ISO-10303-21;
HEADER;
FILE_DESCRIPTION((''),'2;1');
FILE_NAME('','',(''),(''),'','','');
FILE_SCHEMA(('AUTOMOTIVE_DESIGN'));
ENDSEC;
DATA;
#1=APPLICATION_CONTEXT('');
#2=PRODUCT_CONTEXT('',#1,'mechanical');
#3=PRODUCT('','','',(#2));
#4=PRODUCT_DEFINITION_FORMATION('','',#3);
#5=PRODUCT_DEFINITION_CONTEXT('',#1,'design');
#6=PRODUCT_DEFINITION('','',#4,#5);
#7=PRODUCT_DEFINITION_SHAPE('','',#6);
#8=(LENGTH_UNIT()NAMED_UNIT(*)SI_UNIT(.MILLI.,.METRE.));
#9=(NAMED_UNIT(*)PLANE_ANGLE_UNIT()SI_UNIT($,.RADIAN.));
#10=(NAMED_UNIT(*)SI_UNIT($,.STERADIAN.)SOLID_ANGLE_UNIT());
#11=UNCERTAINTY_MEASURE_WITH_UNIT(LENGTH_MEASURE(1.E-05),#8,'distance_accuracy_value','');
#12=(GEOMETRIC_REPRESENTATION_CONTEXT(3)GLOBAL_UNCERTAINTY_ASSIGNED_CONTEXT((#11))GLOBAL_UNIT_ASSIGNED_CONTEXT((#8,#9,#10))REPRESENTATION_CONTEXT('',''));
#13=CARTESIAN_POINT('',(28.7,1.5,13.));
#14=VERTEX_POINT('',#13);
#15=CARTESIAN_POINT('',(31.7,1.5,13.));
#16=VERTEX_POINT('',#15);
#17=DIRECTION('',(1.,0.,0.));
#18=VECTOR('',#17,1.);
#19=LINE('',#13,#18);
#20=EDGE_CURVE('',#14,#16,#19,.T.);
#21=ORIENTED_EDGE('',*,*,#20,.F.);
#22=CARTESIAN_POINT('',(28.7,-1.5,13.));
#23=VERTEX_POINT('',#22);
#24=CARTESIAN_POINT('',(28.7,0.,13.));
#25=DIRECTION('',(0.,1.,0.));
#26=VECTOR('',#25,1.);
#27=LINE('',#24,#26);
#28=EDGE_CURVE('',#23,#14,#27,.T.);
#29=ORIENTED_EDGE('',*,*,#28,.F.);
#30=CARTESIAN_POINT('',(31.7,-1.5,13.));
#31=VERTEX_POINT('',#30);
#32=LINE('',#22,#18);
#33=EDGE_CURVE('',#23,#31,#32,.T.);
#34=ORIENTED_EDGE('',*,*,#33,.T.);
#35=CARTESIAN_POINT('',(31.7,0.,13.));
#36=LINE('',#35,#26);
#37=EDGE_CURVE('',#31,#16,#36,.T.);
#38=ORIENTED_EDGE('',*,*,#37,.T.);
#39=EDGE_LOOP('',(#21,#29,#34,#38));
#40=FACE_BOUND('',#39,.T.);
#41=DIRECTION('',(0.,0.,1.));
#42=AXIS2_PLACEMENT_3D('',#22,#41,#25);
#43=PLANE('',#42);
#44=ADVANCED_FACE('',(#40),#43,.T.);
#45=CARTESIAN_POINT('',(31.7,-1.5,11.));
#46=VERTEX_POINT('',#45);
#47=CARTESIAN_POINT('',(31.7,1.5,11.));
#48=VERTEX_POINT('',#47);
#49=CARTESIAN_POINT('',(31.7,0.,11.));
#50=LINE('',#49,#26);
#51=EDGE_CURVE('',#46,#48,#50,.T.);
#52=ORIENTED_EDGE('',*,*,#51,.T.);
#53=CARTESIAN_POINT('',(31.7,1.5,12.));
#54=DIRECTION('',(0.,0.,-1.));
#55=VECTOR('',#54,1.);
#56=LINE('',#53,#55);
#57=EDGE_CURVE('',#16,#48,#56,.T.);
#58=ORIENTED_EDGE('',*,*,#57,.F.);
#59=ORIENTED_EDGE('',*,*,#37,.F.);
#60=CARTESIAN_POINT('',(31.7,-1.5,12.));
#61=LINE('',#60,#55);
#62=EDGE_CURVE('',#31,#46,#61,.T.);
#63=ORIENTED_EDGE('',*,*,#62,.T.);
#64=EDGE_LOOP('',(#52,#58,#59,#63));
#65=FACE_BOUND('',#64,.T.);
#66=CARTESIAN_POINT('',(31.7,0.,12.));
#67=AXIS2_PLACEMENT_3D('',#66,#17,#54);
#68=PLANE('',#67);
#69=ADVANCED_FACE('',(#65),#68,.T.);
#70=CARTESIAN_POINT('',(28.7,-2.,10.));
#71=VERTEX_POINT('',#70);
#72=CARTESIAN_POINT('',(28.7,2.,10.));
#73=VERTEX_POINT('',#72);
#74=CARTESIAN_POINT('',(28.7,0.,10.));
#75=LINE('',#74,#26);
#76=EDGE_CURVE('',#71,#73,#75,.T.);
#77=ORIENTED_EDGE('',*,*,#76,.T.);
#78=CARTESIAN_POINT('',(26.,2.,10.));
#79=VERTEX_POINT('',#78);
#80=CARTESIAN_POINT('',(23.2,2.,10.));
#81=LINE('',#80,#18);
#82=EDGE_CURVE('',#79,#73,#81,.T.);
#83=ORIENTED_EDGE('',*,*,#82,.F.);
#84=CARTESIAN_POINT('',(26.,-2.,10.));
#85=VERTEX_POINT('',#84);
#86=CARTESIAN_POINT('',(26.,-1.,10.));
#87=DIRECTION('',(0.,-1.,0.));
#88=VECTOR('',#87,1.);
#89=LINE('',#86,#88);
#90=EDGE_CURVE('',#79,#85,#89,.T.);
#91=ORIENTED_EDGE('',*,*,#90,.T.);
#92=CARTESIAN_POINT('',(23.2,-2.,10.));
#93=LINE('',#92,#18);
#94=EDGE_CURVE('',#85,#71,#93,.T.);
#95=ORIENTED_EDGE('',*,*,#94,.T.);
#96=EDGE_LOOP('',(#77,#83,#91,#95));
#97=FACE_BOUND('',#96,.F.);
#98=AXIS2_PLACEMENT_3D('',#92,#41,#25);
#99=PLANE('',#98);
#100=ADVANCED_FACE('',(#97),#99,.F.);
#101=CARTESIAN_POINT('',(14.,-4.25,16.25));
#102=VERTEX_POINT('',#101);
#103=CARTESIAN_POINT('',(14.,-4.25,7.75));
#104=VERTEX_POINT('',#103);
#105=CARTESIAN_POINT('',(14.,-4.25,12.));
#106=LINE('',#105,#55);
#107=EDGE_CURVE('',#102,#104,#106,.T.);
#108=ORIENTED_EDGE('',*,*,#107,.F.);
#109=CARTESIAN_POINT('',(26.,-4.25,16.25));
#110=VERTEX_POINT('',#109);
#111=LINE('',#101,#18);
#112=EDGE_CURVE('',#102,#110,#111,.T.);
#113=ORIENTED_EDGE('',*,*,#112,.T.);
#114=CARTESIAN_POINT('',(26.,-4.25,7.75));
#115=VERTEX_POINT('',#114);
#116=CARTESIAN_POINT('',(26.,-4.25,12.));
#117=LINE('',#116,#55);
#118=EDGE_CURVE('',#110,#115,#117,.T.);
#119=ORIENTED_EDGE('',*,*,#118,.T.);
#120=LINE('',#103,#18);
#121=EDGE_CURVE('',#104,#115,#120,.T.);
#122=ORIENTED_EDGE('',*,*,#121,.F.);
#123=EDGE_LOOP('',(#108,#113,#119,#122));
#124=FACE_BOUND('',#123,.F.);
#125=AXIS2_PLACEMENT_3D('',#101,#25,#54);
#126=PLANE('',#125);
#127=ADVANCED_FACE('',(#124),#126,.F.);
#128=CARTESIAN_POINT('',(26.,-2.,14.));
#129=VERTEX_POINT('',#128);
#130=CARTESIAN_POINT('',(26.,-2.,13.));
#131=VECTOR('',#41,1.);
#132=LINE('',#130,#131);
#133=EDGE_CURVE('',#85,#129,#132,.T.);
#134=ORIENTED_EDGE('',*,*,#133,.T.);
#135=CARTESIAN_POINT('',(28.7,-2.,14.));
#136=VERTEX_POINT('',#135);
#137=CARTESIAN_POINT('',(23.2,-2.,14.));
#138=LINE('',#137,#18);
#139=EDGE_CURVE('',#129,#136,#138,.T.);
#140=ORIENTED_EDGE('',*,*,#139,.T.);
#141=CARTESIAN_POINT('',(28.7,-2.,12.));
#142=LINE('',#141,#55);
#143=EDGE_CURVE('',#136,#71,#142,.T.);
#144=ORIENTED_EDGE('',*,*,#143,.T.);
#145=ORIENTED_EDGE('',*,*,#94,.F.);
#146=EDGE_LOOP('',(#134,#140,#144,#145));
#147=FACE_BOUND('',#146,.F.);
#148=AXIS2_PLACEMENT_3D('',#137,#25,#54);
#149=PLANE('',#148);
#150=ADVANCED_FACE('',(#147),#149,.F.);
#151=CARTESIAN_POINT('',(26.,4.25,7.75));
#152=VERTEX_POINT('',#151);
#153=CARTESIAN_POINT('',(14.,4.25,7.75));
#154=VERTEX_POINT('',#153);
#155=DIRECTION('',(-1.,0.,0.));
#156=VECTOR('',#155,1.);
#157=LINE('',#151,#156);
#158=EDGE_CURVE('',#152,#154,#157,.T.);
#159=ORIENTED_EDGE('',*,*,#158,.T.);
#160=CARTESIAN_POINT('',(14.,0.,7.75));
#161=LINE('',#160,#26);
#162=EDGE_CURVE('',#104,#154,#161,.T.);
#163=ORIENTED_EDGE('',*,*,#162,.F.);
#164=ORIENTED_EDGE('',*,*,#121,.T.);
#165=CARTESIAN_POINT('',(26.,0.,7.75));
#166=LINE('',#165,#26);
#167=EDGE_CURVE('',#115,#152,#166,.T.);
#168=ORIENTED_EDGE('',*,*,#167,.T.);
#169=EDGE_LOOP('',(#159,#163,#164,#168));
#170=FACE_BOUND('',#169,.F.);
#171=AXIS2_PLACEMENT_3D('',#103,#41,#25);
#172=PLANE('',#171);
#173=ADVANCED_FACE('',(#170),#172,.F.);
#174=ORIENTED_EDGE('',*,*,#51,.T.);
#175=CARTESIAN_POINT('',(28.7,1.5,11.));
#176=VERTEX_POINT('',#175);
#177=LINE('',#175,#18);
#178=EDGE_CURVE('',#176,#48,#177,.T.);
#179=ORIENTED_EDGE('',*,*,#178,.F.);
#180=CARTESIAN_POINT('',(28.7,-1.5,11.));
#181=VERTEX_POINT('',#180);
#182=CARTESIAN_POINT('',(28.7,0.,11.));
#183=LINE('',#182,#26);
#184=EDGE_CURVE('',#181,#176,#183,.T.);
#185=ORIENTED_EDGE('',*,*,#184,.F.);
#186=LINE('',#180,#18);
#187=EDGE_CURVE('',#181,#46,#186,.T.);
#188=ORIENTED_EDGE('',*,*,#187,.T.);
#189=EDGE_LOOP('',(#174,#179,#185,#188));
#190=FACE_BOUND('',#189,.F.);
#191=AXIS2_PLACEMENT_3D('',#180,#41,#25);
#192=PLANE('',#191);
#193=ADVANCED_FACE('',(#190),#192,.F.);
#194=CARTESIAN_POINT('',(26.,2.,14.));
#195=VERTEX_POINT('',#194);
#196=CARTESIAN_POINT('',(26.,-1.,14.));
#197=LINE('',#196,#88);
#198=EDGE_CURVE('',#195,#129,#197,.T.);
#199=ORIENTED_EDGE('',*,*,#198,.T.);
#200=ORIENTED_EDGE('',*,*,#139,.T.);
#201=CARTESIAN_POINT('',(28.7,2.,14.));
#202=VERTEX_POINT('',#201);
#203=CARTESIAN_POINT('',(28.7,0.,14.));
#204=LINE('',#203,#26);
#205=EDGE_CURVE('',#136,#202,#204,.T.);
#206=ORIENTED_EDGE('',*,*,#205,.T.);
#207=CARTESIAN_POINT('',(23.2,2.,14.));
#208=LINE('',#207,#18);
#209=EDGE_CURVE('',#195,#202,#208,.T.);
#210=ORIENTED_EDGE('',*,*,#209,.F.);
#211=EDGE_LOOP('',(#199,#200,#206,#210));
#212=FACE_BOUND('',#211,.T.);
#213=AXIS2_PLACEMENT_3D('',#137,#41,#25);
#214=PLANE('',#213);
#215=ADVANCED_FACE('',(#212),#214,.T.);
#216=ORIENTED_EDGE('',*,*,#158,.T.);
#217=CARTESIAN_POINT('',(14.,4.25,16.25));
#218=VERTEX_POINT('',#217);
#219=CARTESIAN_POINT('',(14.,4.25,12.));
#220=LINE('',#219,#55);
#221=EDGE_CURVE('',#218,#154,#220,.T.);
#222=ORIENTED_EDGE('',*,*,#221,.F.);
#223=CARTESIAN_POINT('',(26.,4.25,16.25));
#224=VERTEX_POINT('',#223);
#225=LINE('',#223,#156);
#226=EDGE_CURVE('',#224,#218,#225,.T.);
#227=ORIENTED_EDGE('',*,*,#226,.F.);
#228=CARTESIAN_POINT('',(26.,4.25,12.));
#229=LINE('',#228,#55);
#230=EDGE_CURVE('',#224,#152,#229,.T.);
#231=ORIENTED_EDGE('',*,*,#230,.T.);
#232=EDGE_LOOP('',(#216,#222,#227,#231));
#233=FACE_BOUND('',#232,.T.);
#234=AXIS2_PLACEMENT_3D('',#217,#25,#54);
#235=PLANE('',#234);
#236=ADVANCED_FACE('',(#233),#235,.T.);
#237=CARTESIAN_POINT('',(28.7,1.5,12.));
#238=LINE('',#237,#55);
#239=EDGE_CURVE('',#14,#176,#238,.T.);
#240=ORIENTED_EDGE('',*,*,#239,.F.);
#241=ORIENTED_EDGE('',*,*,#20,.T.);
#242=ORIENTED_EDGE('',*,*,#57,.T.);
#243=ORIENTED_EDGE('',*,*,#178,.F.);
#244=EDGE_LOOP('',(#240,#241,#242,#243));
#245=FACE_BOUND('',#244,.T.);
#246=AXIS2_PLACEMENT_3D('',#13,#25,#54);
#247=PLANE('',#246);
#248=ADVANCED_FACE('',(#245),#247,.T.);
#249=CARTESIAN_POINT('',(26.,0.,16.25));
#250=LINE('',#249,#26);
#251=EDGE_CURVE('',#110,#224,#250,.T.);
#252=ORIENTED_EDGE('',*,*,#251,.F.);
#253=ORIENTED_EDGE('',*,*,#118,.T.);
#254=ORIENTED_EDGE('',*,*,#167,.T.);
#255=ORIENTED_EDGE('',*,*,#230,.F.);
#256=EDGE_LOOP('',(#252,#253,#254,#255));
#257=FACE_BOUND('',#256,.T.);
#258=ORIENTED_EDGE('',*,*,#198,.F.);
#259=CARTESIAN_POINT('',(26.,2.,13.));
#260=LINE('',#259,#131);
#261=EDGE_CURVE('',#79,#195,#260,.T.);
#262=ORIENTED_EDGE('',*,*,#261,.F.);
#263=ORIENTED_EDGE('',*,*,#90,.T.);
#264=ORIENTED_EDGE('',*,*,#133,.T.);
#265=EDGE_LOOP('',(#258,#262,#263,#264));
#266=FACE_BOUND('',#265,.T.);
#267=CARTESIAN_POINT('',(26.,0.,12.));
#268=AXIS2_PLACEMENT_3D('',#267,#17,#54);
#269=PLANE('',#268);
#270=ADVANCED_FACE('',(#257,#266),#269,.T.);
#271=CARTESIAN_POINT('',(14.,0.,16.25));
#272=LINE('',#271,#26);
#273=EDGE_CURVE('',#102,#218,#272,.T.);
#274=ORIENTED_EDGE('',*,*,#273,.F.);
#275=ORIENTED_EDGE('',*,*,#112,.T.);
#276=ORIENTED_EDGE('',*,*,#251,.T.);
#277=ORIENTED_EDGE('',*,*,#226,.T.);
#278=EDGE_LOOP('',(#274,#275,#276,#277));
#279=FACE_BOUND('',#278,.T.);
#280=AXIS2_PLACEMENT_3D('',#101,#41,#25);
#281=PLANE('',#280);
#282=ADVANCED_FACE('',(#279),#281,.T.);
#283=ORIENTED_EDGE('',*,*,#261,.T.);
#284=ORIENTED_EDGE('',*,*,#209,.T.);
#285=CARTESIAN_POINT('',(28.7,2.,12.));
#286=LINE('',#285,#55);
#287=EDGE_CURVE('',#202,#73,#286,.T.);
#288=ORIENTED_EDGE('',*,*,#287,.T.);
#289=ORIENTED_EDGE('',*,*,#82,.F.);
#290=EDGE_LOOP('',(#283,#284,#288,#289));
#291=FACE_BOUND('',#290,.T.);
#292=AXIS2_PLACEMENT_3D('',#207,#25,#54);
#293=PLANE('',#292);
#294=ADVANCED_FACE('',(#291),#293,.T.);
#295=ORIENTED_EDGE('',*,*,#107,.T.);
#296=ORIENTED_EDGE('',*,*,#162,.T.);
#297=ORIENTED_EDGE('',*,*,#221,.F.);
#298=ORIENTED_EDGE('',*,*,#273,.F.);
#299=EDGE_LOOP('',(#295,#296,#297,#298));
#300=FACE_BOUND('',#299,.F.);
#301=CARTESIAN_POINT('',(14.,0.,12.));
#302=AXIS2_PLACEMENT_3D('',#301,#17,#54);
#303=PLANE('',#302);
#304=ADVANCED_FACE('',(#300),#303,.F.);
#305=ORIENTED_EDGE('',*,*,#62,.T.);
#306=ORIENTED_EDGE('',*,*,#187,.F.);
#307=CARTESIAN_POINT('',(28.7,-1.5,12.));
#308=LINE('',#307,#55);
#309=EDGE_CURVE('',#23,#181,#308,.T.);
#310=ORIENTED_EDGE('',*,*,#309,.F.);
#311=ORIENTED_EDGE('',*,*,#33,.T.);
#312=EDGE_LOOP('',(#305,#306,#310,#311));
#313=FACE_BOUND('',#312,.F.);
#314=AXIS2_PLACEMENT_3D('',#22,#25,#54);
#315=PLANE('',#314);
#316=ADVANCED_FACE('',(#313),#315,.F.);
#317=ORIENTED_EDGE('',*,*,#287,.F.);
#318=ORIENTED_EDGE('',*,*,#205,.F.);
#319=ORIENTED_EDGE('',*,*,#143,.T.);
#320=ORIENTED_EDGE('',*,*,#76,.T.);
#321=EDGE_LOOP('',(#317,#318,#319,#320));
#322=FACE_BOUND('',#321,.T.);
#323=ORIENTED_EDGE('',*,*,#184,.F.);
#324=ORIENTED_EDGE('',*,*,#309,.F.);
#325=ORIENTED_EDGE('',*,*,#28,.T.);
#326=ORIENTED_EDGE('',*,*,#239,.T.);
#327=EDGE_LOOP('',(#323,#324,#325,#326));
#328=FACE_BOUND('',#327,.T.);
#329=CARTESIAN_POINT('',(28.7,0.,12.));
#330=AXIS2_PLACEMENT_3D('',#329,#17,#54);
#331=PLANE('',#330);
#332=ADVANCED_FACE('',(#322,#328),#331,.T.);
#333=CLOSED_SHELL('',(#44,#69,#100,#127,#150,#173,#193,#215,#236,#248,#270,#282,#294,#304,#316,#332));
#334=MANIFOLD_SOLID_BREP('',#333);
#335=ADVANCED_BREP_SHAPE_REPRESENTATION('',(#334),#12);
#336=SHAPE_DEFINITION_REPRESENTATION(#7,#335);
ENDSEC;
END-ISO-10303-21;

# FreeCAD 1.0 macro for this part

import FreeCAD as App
import Part
import Sketcher

V = App.Vector

doc = App.newDocument("Part")
body = doc.addObject("PartDesign::Body", "Body")

sketch1 = body.newObject("Sketcher::SketchObject", "Sketch")
sketch1.AttachmentSupport = (doc.getObject("XY_Plane"), [""])
sketch1.MapMode = "FlatFace"
sketch1.AttachmentOffset = App.Placement(V(0, 0, 5.7), App.Rotation())
sketch1.addGeometry([
    Part.LineSegment(V(-2, 2, 0), V(-2, -2, 0)),
    Part.LineSegment(V(-2, -2, 0), V(2, -2, 0)),
    Part.LineSegment(V(2, -2, 0), V(2, 2, 0)),
    Part.LineSegment(V(2, 2, 0), V(-2, 2, 0)),
], False)
sketch1.addConstraint([
    Sketcher.Constraint("Coincident", 0, 2, 1, 1),
    Sketcher.Constraint("Coincident", 1, 2, 2, 1),
    Sketcher.Constraint("Coincident", 2, 2, 3, 1),
    Sketcher.Constraint("Coincident", 3, 2, 0, 1),
    Sketcher.Constraint("Vertical", 0),
    Sketcher.Constraint("Horizontal", 1),
    Sketcher.Constraint("Vertical", 2),
    Sketcher.Constraint("Horizontal", 3),
    Sketcher.Constraint("Symmetric", 0, 2, 2, 2, -1, 1),
    Sketcher.Constraint("Equal", 3, 0),
    Sketcher.Constraint("DistanceX", 1, 1, 1, 2, 4.0),
])
pad1 = body.newObject("PartDesign::Pad", "Pad")
pad1.Profile = sketch1
pad1.Length = 5.5
body2 = doc.addObject("PartDesign::Body", "Body001")

sketch2 = body2.newObject("Sketcher::SketchObject", "Sketch001")
sketch2.AttachmentSupport = (doc.getObject("XY_Plane001"), [""])
sketch2.MapMode = "FlatFace"
sketch2.AttachmentOffset = App.Placement(V(0, 0, -3.5), App.Rotation())
sketch2.addGeometry([
    Part.LineSegment(V(-4, 4, 0), V(-4, -4, 0)),
    Part.LineSegment(V(-4, -4, 0), V(4, -4, 0)),
    Part.LineSegment(V(4, -4, 0), V(4, 4, 0)),
    Part.LineSegment(V(4, 4, 0), V(-4, 4, 0)),
], False)
sketch2.addConstraint([
    Sketcher.Constraint("Coincident", 0, 2, 1, 1),
    Sketcher.Constraint("Coincident", 1, 2, 2, 1),
    Sketcher.Constraint("Coincident", 2, 2, 3, 1),
    Sketcher.Constraint("Coincident", 3, 2, 0, 1),
    Sketcher.Constraint("Vertical", 0),
    Sketcher.Constraint("Horizontal", 1),
    Sketcher.Constraint("Vertical", 2),
    Sketcher.Constraint("Horizontal", 3),
    Sketcher.Constraint("Symmetric", 0, 2, 2, 2, -1, 1),
    Sketcher.Constraint("Equal", 3, 0),
    Sketcher.Constraint("DistanceX", 1, 1, 1, 2, 8.5),
])
pad2 = body2.newObject("PartDesign::Pad", "Pad001")
pad2.Profile = sketch2
pad2.Length = 3.5
body3 = doc.addObject("PartDesign::Body", "Body002")

sketch3 = body3.newObject("Sketcher::SketchObject", "Sketch002")
sketch3.AttachmentSupport = (doc.getObject("XY_Plane002"), [""])
sketch3.MapMode = "FlatFace"
sketch3.AttachmentOffset = App.Placement(V(0, 0, 11.2), App.Rotation())
sketch3.addGeometry([
    Part.LineSegment(V(-1, 1.5, 0), V(-1, -1.5, 0)),
    Part.LineSegment(V(-1, -1.5, 0), V(1, -1.5, 0)),
    Part.LineSegment(V(1, -1.5, 0), V(1, 1.5, 0)),
    Part.LineSegment(V(1, 1.5, 0), V(-1, 1.5, 0)),
], False)
sketch3.addConstraint([
    Sketcher.Constraint("Coincident", 0, 2, 1, 1),
    Sketcher.Constraint("Coincident", 1, 2, 2, 1),
    Sketcher.Constraint("Coincident", 2, 2, 3, 1),
    Sketcher.Constraint("Coincident", 3, 2, 0, 1),
    Sketcher.Constraint("Vertical", 0),
    Sketcher.Constraint("Horizontal", 1),
    Sketcher.Constraint("Vertical", 2),
    Sketcher.Constraint("Horizontal", 3),
    Sketcher.Constraint("Symmetric", 0, 2, 2, 2, -1, 1),
    Sketcher.Constraint("DistanceX", 1, 1, 1, 2, 2.0),
    Sketcher.Constraint("DistanceY", 0, 2, 0, 1, 3.0),
])
pad3 = body3.newObject("PartDesign::Pad", "Pad002")
pad3.Profile = sketch3
pad3.Length = 3
body4 = doc.addObject("PartDesign::Body", "Body003")

sketch4 = body4.newObject("Sketcher::SketchObject", "Sketch003")
sketch4.AttachmentSupport = (doc.getObject("XY_Plane003"), [""])
sketch4.MapMode = "FlatFace"
sketch4.addGeometry([
    Part.LineSegment(V(-4, 4, 0), V(-4, -4, 0)),
    Part.LineSegment(V(-4, -4, 0), V(4, -4, 0)),
    Part.LineSegment(V(4, -4, 0), V(4, 4, 0)),
    Part.LineSegment(V(4, 4, 0), V(-4, 4, 0)),
], False)
sketch4.addConstraint([
    Sketcher.Constraint("Coincident", 0, 2, 1, 1),
    Sketcher.Constraint("Coincident", 1, 2, 2, 1),
    Sketcher.Constraint("Coincident", 2, 2, 3, 1),
    Sketcher.Constraint("Coincident", 3, 2, 0, 1),
    Sketcher.Constraint("Vertical", 0),
    Sketcher.Constraint("Horizontal", 1),
    Sketcher.Constraint("Vertical", 2),
    Sketcher.Constraint("Horizontal", 3),
    Sketcher.Constraint("Symmetric", 0, 2, 2, 2, -1, 1),
    Sketcher.Constraint("Equal", 3, 0),
    Sketcher.Constraint("DistanceX", 1, 1, 1, 2, 8.5),
])
pad4 = body4.newObject("PartDesign::Pad", "Pad003")
pad4.Profile = sketch4
pad4.Length = 8.5
doc.recompute()

boolean = body4.newObject("PartDesign::Boolean", "Boolean")
boolean.Type = "Fuse"
boolean.addObjects([body])
doc.recompute()

boolean2 = body4.newObject("PartDesign::Boolean", "Boolean001")
boolean2.Type = "Fuse"
boolean2.addObjects([body2])
doc.recompute()

boolean3 = body4.newObject("PartDesign::Boolean", "Boolean002")
boolean3.Type = "Fuse"
boolean3.addObjects([body3])
body5 = doc.addObject("PartDesign::Body", "Body004")
doc.recompute()

body4.Placement = App.Placement(V(17.5, 0, 12), App.Rotation(V(0, 1, 0), 90))
boolean4 = body5.newObject("PartDesign::Boolean", "Boolean003")
boolean4.Type = "Fuse"
boolean4.addObjects([body4])

doc.recompute()
